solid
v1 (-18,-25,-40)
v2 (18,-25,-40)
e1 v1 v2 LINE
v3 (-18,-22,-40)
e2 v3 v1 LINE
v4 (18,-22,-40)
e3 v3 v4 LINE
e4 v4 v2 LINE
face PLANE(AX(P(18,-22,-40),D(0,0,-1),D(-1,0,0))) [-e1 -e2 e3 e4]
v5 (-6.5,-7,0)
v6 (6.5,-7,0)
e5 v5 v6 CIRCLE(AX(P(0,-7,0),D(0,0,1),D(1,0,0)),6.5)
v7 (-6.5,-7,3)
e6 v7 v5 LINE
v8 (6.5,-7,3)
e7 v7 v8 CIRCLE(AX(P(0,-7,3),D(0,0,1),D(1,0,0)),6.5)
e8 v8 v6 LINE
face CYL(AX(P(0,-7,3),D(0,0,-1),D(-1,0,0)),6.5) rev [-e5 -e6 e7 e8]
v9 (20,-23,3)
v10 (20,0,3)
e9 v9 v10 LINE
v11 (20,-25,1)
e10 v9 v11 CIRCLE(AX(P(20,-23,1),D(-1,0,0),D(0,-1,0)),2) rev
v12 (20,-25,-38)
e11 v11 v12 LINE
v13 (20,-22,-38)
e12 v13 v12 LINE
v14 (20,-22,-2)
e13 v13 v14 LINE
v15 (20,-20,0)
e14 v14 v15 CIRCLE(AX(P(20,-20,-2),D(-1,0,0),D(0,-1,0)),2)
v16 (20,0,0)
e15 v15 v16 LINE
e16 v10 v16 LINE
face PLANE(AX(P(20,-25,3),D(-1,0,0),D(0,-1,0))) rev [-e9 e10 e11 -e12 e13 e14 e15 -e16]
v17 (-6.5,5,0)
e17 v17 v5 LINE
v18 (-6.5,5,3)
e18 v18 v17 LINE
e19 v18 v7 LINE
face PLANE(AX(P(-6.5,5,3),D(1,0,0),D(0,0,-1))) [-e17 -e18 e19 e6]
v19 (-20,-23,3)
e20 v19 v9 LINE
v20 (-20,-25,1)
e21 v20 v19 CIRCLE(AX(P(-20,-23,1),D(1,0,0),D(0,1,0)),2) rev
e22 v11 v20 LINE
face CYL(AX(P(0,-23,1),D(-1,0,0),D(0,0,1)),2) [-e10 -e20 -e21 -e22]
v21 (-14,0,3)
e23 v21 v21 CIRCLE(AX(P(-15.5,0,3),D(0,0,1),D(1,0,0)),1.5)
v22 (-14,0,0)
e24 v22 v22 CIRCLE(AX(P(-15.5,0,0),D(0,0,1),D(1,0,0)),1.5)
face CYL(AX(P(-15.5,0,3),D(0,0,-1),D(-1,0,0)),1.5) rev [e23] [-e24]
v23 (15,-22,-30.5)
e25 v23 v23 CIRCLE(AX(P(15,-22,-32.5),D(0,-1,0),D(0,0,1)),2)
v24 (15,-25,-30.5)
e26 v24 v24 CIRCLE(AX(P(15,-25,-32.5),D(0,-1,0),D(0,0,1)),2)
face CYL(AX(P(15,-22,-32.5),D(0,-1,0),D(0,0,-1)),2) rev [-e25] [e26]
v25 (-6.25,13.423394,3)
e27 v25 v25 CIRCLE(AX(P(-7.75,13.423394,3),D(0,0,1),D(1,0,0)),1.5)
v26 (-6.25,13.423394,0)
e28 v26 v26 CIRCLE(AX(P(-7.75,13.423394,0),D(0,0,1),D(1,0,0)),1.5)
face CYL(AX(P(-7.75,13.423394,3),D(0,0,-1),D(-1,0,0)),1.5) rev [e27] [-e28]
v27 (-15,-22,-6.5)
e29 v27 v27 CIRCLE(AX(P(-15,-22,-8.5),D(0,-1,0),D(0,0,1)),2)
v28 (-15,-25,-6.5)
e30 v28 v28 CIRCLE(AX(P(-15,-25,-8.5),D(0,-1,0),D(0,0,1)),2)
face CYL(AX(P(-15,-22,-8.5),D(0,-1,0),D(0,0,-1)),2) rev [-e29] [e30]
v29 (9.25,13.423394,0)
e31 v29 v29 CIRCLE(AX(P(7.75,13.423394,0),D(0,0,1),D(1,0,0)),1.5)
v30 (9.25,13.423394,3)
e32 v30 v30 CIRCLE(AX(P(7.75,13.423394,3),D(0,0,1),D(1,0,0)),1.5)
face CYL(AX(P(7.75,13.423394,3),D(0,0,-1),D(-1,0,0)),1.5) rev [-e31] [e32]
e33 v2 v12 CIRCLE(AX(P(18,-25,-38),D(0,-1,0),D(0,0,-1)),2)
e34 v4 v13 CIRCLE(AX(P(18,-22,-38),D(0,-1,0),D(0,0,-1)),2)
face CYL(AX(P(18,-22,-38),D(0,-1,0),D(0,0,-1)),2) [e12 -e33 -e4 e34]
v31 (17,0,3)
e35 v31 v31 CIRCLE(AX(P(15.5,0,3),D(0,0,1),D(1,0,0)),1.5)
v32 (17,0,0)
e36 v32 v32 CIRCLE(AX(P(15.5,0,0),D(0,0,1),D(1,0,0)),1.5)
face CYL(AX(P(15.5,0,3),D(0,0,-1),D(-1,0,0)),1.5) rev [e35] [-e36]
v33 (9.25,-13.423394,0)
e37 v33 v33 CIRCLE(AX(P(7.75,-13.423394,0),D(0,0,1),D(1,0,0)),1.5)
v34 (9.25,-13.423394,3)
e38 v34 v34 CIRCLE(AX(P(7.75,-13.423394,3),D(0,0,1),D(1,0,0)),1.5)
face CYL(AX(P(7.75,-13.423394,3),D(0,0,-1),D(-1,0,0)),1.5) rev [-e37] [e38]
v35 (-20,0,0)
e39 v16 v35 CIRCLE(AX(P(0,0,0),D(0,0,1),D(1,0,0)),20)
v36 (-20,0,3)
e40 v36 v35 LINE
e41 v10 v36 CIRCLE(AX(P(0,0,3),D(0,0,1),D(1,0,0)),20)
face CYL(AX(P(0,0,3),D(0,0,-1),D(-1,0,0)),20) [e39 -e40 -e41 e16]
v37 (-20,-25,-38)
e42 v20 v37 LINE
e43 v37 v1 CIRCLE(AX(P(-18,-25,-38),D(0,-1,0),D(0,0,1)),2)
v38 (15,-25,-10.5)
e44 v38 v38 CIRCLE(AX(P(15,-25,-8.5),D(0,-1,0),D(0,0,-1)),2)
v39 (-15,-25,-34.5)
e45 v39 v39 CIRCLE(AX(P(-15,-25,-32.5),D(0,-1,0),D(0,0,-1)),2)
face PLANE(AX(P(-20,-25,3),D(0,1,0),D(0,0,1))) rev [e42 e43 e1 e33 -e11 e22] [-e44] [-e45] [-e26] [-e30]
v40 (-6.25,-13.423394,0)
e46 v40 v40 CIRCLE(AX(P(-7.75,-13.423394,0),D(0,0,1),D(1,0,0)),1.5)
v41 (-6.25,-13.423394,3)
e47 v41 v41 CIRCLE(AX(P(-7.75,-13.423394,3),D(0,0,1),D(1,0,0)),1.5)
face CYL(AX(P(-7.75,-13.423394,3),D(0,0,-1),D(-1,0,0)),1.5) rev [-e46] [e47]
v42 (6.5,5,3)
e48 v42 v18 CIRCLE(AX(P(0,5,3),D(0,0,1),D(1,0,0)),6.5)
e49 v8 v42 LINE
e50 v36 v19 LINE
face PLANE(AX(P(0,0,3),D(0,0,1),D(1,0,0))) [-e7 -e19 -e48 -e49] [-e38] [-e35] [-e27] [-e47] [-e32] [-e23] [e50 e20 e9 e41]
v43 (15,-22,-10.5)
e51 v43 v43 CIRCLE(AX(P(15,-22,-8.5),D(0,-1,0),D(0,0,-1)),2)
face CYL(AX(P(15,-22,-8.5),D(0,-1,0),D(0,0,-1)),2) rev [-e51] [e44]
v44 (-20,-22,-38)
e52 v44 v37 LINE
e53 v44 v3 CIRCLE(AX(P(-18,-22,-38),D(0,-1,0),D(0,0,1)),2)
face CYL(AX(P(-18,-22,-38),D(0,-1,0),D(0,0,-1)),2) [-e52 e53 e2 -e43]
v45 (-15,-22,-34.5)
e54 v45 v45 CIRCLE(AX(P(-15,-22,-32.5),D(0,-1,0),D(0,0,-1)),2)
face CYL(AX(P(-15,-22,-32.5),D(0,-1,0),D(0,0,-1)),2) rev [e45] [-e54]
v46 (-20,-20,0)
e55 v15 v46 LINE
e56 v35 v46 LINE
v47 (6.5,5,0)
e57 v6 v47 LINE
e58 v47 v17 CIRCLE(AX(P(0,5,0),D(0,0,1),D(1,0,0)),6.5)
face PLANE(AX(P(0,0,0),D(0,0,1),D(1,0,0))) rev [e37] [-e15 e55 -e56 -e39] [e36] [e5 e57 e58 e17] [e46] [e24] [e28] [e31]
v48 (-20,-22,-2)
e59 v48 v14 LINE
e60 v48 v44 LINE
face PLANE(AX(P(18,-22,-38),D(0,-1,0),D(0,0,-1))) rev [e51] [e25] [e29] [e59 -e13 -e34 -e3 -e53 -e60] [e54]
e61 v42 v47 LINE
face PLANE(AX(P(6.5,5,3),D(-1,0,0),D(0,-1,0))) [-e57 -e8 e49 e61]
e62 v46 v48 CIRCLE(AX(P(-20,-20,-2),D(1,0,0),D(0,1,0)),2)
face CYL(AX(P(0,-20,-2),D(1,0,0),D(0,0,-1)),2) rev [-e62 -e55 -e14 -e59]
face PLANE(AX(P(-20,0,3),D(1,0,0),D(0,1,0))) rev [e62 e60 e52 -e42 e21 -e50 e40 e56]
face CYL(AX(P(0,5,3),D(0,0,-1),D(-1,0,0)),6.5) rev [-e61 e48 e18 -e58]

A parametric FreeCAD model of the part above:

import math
import FreeCAD as App
import Part
import Sketcher
from FreeCAD import Vector
Q = App.Units.Quantity


def edges_at(feature, points):
    """Names of the edges that pass closest to the given points."""
    edges = feature.Shape.Edges
    near = lambda p: min(range(len(edges)), key=lambda i: edges[i].distToShape(Part.Vertex(*p))[0])
    return sorted({f"Edge{near(p) + 1}" for p in points})

doc = App.newDocument("Part")
body = doc.addObject("PartDesign::Body", "Body")

# Sketch on XY plane
sketch1 = body.newObject("Sketcher::SketchObject", "Sketch")
sketch1.AttachmentSupport = (doc.getObject("XY_Plane"), [""])
sketch1.MapMode = "FlatFace"
sketch1.addGeometry(Part.LineSegment(Vector(-20, 0, 0), Vector(-20, -25, 0)), False)
sketch1.addGeometry(Part.LineSegment(Vector(-20, -25, 0), Vector(20, -25, 0)), False)
sketch1.addGeometry(Part.LineSegment(Vector(20, -25, 0), Vector(20, 0, 0)), False)
sketch1.addGeometry(Part.ArcOfCircle(Part.Circle(Vector(0, 0, 0), Vector(0, 0, 1), 20), math.radians(0), math.radians(180)), False)
sketch1.addGeometry(Part.Circle(Vector(-7.8, -13.4, 0), Vector(0, 0, 1), 1.5), False)
sketch1.addGeometry(Part.Circle(Vector(7.8, -13.4, 0), Vector(0, 0, 1), 1.5), False)
sketch1.addGeometry(Part.ArcOfCircle(Part.Circle(Vector(0, 5, 0), Vector(0, 0, 1), 6.5), math.radians(0), math.radians(180)), False)
sketch1.addGeometry(Part.LineSegment(Vector(6.5, 5, 0), Vector(6.5, -7, 0)), False)
sketch1.addGeometry(Part.ArcOfCircle(Part.Circle(Vector(0, -7, 0), Vector(0, 0, 1), 6.5), math.radians(180), math.radians(360)), False)
sketch1.addGeometry(Part.LineSegment(Vector(-6.5, -7, 0), Vector(-6.5, 5, 0)), False)
sketch1.addGeometry(Part.Circle(Vector(-15.5, 0, 0), Vector(0, 0, 1), 1.5), False)
sketch1.addGeometry(Part.Circle(Vector(-7.8, 13.4, 0), Vector(0, 0, 1), 1.5), False)
sketch1.addGeometry(Part.Circle(Vector(15.5, 0, 0), Vector(0, 0, 1), 1.5), False)
sketch1.addGeometry(Part.Circle(Vector(7.8, 13.4, 0), Vector(0, 0, 1), 1.5), False)
sketch1.addConstraint(Sketcher.Constraint("Coincident", 0, 2, 1, 1))
sketch1.addConstraint(Sketcher.Constraint("Coincident", 1, 2, 2, 1))
sketch1.addConstraint(Sketcher.Constraint("Tangent", 2, 2, 3, 1))
sketch1.addConstraint(Sketcher.Constraint("Tangent", 3, 2, 0, 1))
sketch1.addConstraint(Sketcher.Constraint("Tangent", 6, 1, 7, 1))
sketch1.addConstraint(Sketcher.Constraint("Tangent", 7, 2, 8, 2))
sketch1.addConstraint(Sketcher.Constraint("Tangent", 8, 1, 9, 1))
sketch1.addConstraint(Sketcher.Constraint("Tangent", 9, 2, 6, 2))
sketch1.addConstraint(Sketcher.Constraint("Vertical", 0))
sketch1.addConstraint(Sketcher.Constraint("Horizontal", 1))
sketch1.addConstraint(Sketcher.Constraint("Vertical", 2))
sketch1.addConstraint(Sketcher.Constraint("Vertical", 7))
sketch1.addConstraint(Sketcher.Constraint("Vertical", 9))
sketch1.addConstraint(Sketcher.Constraint("Coincident", 3, 3, -1, 1))
sketch1.addConstraint(Sketcher.Constraint("Equal", 4, 5))
sketch1.addConstraint(Sketcher.Constraint("Equal", 5, 10))
sketch1.addConstraint(Sketcher.Constraint("Equal", 10, 11))
sketch1.addConstraint(Sketcher.Constraint("Equal", 11, 12))
sketch1.addConstraint(Sketcher.Constraint("Equal", 12, 13))
sketch1.addConstraint(Sketcher.Constraint("Symmetric", 5, 3, 11, 3, -1, 1))
sketch1.addConstraint(Sketcher.Constraint("Symmetric", 10, 3, 12, 3, -1, 1))
sketch1.addConstraint(Sketcher.Constraint("Symmetric", 4, 3, 13, 3, -1, 1))
sketch1.addConstraint(Sketcher.Constraint("Symmetric", 4, 3, 5, 3, -2))
sketch1.addConstraint(Sketcher.Constraint("PointOnObject", 6, 3, -2))
sketch1.addConstraint(Sketcher.Constraint("PointOnObject", 10, 3, -1))
sketch1.addConstraint(Sketcher.Constraint("Diameter", 4, Q("3 mm")))
sketch1.addConstraint(Sketcher.Constraint("Radius", 3, Q("20 mm")))
sketch1.addConstraint(Sketcher.Constraint("Radius", 6, Q("6.5 mm")))
sketch1.addConstraint(Sketcher.Constraint("DistanceY", 0, 2, 0, 1, Q("25 mm")))
sketch1.addConstraint(Sketcher.Constraint("DistanceY", 7, 2, 7, 1, Q("12 mm")))
sketch1.addConstraint(Sketcher.Constraint("DistanceY", -1, 1, 6, 3, Q("5 mm")))
sketch1.addConstraint(Sketcher.Constraint("DistanceX", 6, 1, 12, 3, Q("9 mm")))
sketch1.addConstraint(Sketcher.Constraint("DistanceX", 4, 3, 5, 3, Q("15.5 mm")))
sketch1.addConstraint(Sketcher.Constraint("DistanceY", 4, 3, -1, 1, Q("13.423394 mm")))
pad1 = body.newObject("PartDesign::Pad", "Pad")
pad1.Profile = sketch1
pad1.Length = 3

# Sketch on XZ plane
sketch2 = body.newObject("Sketcher::SketchObject", "Sketch001")
sketch2.AttachmentSupport = (doc.getObject("XZ_Plane"), [""])
sketch2.MapMode = "FlatFace"
sketch2.AttachmentOffset = App.Placement(Vector(0, 0, 25), App.Rotation())
sketch2.addGeometry(Part.LineSegment(Vector(20, 0, 0), Vector(-20, 0, 0)), False)
sketch2.addGeometry(Part.LineSegment(Vector(-20, 0, 0), Vector(-20, -38, 0)), False)
sketch2.addGeometry(Part.ArcOfCircle(Part.Circle(Vector(-18, -38, 0), Vector(0, 0, 1), 2), math.radians(-180), math.radians(-90)), False)
sketch2.addGeometry(Part.LineSegment(Vector(-18, -40, 0), Vector(18, -40, 0)), False)
sketch2.addGeometry(Part.ArcOfCircle(Part.Circle(Vector(18, -38, 0), Vector(0, 0, 1), 2), math.radians(-90), math.radians(0)), False)
sketch2.addGeometry(Part.LineSegment(Vector(20, -38, 0), Vector(20, 0, 0)), False)
sketch2.addGeometry(Part.Circle(Vector(-15, -32.5, 0), Vector(0, 0, 1), 2), False)
sketch2.addGeometry(Part.Circle(Vector(15, -32.5, 0), Vector(0, 0, 1), 2), False)
sketch2.addGeometry(Part.Circle(Vector(-15, -8.5, 0), Vector(0, 0, 1), 2), False)
sketch2.addGeometry(Part.Circle(Vector(15, -8.5, 0), Vector(0, 0, 1), 2), False)
sketch2.addConstraint(Sketcher.Constraint("Coincident", 0, 2, 1, 1))
sketch2.addConstraint(Sketcher.Constraint("Tangent", 1, 2, 2, 1))
sketch2.addConstraint(Sketcher.Constraint("Tangent", 2, 2, 3, 1))
sketch2.addConstraint(Sketcher.Constraint("Tangent", 3, 2, 4, 1))
sketch2.addConstraint(Sketcher.Constraint("Tangent", 4, 2, 5, 1))
sketch2.addConstraint(Sketcher.Constraint("Coincident", 5, 2, 0, 1))
sketch2.addConstraint(Sketcher.Constraint("Horizontal", 0))
sketch2.addConstraint(Sketcher.Constraint("Vertical", 1))
sketch2.addConstraint(Sketcher.Constraint("Horizontal", 3))
sketch2.addConstraint(Sketcher.Constraint("Vertical", 5))
sketch2.addConstraint(Sketcher.Constraint("Equal", 2, 4))
sketch2.addConstraint(Sketcher.Constraint("Equal", 4, 6))
sketch2.addConstraint(Sketcher.Constraint("Equal", 6, 7))
sketch2.addConstraint(Sketcher.Constraint("Equal", 7, 8))
sketch2.addConstraint(Sketcher.Constraint("Equal", 8, 9))
sketch2.addConstraint(Sketcher.Constraint("Symmetric", 0, 2, 5, 2, -1, 1))
sketch2.addConstraint(Sketcher.Constraint("Symmetric", 6, 3, 7, 3, -2))
sketch2.addConstraint(Sketcher.Constraint("Symmetric", 8, 3, 9, 3, -2))
sketch2.addConstraint(Sketcher.Constraint("Vertical", 6, 3, 8, 3))
sketch2.addConstraint(Sketcher.Constraint("Diameter", 6, Q("4 mm")))
sketch2.addConstraint(Sketcher.Constraint("DistanceX", 0, 2, 0, 1, Q("40 mm")))
sketch2.addConstraint(Sketcher.Constraint("DistanceY", 1, 2, 1, 1, Q("38 mm")))
sketch2.addConstraint(Sketcher.Constraint("DistanceX", 6, 3, -1, 1, Q("15 mm")))
sketch2.addConstraint(Sketcher.Constraint("DistanceY", 6, 3, 8, 3, Q("24 mm")))
sketch2.addConstraint(Sketcher.Constraint("DistanceY", 6, 3, -1, 1, Q("32.5 mm")))
pad2 = body.newObject("PartDesign::Pad", "Pad001")
pad2.Profile = sketch2
pad2.Length = 3
pad2.Reversed = True
doc.recompute()

fillet = body.newObject("PartDesign::Fillet", "Fillet")
fillet.Base = (pad2, edges_at(pad2, [(0, -25, 3), (0, -22, 0)]))
fillet.Radius = 2

doc.recompute()
